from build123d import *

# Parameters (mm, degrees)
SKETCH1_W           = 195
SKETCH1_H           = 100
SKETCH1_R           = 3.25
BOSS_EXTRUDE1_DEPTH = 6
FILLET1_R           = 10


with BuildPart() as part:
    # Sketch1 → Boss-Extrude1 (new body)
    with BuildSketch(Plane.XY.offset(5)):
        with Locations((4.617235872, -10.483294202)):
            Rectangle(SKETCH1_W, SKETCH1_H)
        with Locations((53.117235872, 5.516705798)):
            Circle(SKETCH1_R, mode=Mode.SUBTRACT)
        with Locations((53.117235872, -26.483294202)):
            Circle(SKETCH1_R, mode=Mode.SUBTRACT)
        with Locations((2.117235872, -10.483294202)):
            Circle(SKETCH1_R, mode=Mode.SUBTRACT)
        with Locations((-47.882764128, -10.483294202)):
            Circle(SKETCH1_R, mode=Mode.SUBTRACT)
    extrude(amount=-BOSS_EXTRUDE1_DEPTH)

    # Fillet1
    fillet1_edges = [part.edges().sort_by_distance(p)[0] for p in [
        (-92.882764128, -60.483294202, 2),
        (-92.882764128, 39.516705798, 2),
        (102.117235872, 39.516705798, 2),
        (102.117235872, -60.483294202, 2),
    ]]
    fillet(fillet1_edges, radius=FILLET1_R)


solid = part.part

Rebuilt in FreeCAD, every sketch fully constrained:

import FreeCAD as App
import Part
import Sketcher
from FreeCAD import Vector
Q = App.Units.Quantity


def edges_at(feature, points):
    """Names of the edges that pass closest to the given points."""
    edges = feature.Shape.Edges
    near = lambda p: min(range(len(edges)), key=lambda i: edges[i].distToShape(Part.Vertex(*p))[0])
    return sorted({f"Edge{near(p) + 1}" for p in points})

doc = App.newDocument("Part")
body = doc.addObject("PartDesign::Body", "Body")

# Sketch on XY plane
sketch1 = doc.addObject("Sketcher::SketchObject", "Sketch")
body.addObject(sketch1)
sketch1.AttachmentSupport = (doc.XY_Plane, [""])
sketch1.MapMode = "FlatFace"
sketch1.AttachmentOffset = App.Placement(Vector(0, 0, 5), App.Rotation())
sketch1.addGeometry([
    Part.LineSegment(Vector(-92.9, 39.5, 0), Vector(-92.9, -60.5, 0)),  # 0
    Part.LineSegment(Vector(-92.9, -60.5, 0), Vector(102.1, -60.5, 0)),  # 1
    Part.LineSegment(Vector(102.1, -60.5, 0), Vector(102.1, 39.5, 0)),  # 2
    Part.LineSegment(Vector(102.1, 39.5, 0), Vector(-92.9, 39.5, 0)),  # 3
    Part.Circle(Vector(53.1, -26.5, 0), Vector(0, 0, 1), 3.2),  # 4
    Part.Circle(Vector(-47.9, -10.5, 0), Vector(0, 0, 1), 3.2),  # 5
    Part.Circle(Vector(2.1, -10.5, 0), Vector(0, 0, 1), 3.2),  # 6
    Part.Circle(Vector(53.1, 5.5, 0), Vector(0, 0, 1), 3.2),  # 7
], False)
sketch1.addConstraint([
    Sketcher.Constraint("Coincident", 0, 2, 1, 1),
    Sketcher.Constraint("Coincident", 1, 2, 2, 1),
    Sketcher.Constraint("Coincident", 2, 2, 3, 1),
    Sketcher.Constraint("Coincident", 3, 2, 0, 1),
    Sketcher.Constraint("Vertical", 0),
    Sketcher.Constraint("Horizontal", 1),
    Sketcher.Constraint("Vertical", 2),
    Sketcher.Constraint("Horizontal", 3),
    Sketcher.Constraint("Equal", 4, 5),
    Sketcher.Constraint("Equal", 5, 6),
    Sketcher.Constraint("Equal", 6, 7),
    Sketcher.Constraint("Horizontal", 5, 3, 6, 3),
    Sketcher.Constraint("Vertical", 4, 3, 7, 3),
    Sketcher.Constraint("Diameter", 4, Q("6.5 mm")),
    Sketcher.Constraint("DistanceX", 1, 1, 1, 2, Q("195 mm")),
    Sketcher.Constraint("DistanceY", 0, 2, 0, 1, Q("100 mm")),
    Sketcher.Constraint("DistanceX", 5, 3, 4, 3, Q("101 mm")),
    Sketcher.Constraint("DistanceY", 4, 3, 5, 3, Q("16 mm")),
    Sketcher.Constraint("DistanceX", 5, 3, 6, 3, Q("50 mm")),
    Sketcher.Constraint("DistanceY", 4, 3, 7, 3, Q("32 mm")),
    Sketcher.Constraint("DistanceX", 0, 2, 5, 3, Q("45 mm")),
    Sketcher.Constraint("DistanceY", 0, 2, 5, 3, Q("50 mm")),
    Sketcher.Constraint("DistanceX", -1, 1, 4, 3, Q("53.117236 mm")),
    Sketcher.Constraint("DistanceY", 4, 3, -1, 1, Q("26.483294 mm")),
])
pad1 = doc.addObject("PartDesign::Pad", "Pad")
body.addObject(pad1)
pad1.Profile = sketch1
pad1.Length = 6
pad1.Reversed = True
doc.recompute()

fillet = doc.addObject("PartDesign::Fillet", "Fillet")
body.addObject(fillet)
fillet.Base = (pad1, edges_at(pad1, [
    (-92.883, -60.483, 2),
    (-92.883, 39.517, 2),
    (102.117, 39.517, 2),
    (102.117, -60.483, 2),
]))
fillet.Radius = 10

doc.recompute()
